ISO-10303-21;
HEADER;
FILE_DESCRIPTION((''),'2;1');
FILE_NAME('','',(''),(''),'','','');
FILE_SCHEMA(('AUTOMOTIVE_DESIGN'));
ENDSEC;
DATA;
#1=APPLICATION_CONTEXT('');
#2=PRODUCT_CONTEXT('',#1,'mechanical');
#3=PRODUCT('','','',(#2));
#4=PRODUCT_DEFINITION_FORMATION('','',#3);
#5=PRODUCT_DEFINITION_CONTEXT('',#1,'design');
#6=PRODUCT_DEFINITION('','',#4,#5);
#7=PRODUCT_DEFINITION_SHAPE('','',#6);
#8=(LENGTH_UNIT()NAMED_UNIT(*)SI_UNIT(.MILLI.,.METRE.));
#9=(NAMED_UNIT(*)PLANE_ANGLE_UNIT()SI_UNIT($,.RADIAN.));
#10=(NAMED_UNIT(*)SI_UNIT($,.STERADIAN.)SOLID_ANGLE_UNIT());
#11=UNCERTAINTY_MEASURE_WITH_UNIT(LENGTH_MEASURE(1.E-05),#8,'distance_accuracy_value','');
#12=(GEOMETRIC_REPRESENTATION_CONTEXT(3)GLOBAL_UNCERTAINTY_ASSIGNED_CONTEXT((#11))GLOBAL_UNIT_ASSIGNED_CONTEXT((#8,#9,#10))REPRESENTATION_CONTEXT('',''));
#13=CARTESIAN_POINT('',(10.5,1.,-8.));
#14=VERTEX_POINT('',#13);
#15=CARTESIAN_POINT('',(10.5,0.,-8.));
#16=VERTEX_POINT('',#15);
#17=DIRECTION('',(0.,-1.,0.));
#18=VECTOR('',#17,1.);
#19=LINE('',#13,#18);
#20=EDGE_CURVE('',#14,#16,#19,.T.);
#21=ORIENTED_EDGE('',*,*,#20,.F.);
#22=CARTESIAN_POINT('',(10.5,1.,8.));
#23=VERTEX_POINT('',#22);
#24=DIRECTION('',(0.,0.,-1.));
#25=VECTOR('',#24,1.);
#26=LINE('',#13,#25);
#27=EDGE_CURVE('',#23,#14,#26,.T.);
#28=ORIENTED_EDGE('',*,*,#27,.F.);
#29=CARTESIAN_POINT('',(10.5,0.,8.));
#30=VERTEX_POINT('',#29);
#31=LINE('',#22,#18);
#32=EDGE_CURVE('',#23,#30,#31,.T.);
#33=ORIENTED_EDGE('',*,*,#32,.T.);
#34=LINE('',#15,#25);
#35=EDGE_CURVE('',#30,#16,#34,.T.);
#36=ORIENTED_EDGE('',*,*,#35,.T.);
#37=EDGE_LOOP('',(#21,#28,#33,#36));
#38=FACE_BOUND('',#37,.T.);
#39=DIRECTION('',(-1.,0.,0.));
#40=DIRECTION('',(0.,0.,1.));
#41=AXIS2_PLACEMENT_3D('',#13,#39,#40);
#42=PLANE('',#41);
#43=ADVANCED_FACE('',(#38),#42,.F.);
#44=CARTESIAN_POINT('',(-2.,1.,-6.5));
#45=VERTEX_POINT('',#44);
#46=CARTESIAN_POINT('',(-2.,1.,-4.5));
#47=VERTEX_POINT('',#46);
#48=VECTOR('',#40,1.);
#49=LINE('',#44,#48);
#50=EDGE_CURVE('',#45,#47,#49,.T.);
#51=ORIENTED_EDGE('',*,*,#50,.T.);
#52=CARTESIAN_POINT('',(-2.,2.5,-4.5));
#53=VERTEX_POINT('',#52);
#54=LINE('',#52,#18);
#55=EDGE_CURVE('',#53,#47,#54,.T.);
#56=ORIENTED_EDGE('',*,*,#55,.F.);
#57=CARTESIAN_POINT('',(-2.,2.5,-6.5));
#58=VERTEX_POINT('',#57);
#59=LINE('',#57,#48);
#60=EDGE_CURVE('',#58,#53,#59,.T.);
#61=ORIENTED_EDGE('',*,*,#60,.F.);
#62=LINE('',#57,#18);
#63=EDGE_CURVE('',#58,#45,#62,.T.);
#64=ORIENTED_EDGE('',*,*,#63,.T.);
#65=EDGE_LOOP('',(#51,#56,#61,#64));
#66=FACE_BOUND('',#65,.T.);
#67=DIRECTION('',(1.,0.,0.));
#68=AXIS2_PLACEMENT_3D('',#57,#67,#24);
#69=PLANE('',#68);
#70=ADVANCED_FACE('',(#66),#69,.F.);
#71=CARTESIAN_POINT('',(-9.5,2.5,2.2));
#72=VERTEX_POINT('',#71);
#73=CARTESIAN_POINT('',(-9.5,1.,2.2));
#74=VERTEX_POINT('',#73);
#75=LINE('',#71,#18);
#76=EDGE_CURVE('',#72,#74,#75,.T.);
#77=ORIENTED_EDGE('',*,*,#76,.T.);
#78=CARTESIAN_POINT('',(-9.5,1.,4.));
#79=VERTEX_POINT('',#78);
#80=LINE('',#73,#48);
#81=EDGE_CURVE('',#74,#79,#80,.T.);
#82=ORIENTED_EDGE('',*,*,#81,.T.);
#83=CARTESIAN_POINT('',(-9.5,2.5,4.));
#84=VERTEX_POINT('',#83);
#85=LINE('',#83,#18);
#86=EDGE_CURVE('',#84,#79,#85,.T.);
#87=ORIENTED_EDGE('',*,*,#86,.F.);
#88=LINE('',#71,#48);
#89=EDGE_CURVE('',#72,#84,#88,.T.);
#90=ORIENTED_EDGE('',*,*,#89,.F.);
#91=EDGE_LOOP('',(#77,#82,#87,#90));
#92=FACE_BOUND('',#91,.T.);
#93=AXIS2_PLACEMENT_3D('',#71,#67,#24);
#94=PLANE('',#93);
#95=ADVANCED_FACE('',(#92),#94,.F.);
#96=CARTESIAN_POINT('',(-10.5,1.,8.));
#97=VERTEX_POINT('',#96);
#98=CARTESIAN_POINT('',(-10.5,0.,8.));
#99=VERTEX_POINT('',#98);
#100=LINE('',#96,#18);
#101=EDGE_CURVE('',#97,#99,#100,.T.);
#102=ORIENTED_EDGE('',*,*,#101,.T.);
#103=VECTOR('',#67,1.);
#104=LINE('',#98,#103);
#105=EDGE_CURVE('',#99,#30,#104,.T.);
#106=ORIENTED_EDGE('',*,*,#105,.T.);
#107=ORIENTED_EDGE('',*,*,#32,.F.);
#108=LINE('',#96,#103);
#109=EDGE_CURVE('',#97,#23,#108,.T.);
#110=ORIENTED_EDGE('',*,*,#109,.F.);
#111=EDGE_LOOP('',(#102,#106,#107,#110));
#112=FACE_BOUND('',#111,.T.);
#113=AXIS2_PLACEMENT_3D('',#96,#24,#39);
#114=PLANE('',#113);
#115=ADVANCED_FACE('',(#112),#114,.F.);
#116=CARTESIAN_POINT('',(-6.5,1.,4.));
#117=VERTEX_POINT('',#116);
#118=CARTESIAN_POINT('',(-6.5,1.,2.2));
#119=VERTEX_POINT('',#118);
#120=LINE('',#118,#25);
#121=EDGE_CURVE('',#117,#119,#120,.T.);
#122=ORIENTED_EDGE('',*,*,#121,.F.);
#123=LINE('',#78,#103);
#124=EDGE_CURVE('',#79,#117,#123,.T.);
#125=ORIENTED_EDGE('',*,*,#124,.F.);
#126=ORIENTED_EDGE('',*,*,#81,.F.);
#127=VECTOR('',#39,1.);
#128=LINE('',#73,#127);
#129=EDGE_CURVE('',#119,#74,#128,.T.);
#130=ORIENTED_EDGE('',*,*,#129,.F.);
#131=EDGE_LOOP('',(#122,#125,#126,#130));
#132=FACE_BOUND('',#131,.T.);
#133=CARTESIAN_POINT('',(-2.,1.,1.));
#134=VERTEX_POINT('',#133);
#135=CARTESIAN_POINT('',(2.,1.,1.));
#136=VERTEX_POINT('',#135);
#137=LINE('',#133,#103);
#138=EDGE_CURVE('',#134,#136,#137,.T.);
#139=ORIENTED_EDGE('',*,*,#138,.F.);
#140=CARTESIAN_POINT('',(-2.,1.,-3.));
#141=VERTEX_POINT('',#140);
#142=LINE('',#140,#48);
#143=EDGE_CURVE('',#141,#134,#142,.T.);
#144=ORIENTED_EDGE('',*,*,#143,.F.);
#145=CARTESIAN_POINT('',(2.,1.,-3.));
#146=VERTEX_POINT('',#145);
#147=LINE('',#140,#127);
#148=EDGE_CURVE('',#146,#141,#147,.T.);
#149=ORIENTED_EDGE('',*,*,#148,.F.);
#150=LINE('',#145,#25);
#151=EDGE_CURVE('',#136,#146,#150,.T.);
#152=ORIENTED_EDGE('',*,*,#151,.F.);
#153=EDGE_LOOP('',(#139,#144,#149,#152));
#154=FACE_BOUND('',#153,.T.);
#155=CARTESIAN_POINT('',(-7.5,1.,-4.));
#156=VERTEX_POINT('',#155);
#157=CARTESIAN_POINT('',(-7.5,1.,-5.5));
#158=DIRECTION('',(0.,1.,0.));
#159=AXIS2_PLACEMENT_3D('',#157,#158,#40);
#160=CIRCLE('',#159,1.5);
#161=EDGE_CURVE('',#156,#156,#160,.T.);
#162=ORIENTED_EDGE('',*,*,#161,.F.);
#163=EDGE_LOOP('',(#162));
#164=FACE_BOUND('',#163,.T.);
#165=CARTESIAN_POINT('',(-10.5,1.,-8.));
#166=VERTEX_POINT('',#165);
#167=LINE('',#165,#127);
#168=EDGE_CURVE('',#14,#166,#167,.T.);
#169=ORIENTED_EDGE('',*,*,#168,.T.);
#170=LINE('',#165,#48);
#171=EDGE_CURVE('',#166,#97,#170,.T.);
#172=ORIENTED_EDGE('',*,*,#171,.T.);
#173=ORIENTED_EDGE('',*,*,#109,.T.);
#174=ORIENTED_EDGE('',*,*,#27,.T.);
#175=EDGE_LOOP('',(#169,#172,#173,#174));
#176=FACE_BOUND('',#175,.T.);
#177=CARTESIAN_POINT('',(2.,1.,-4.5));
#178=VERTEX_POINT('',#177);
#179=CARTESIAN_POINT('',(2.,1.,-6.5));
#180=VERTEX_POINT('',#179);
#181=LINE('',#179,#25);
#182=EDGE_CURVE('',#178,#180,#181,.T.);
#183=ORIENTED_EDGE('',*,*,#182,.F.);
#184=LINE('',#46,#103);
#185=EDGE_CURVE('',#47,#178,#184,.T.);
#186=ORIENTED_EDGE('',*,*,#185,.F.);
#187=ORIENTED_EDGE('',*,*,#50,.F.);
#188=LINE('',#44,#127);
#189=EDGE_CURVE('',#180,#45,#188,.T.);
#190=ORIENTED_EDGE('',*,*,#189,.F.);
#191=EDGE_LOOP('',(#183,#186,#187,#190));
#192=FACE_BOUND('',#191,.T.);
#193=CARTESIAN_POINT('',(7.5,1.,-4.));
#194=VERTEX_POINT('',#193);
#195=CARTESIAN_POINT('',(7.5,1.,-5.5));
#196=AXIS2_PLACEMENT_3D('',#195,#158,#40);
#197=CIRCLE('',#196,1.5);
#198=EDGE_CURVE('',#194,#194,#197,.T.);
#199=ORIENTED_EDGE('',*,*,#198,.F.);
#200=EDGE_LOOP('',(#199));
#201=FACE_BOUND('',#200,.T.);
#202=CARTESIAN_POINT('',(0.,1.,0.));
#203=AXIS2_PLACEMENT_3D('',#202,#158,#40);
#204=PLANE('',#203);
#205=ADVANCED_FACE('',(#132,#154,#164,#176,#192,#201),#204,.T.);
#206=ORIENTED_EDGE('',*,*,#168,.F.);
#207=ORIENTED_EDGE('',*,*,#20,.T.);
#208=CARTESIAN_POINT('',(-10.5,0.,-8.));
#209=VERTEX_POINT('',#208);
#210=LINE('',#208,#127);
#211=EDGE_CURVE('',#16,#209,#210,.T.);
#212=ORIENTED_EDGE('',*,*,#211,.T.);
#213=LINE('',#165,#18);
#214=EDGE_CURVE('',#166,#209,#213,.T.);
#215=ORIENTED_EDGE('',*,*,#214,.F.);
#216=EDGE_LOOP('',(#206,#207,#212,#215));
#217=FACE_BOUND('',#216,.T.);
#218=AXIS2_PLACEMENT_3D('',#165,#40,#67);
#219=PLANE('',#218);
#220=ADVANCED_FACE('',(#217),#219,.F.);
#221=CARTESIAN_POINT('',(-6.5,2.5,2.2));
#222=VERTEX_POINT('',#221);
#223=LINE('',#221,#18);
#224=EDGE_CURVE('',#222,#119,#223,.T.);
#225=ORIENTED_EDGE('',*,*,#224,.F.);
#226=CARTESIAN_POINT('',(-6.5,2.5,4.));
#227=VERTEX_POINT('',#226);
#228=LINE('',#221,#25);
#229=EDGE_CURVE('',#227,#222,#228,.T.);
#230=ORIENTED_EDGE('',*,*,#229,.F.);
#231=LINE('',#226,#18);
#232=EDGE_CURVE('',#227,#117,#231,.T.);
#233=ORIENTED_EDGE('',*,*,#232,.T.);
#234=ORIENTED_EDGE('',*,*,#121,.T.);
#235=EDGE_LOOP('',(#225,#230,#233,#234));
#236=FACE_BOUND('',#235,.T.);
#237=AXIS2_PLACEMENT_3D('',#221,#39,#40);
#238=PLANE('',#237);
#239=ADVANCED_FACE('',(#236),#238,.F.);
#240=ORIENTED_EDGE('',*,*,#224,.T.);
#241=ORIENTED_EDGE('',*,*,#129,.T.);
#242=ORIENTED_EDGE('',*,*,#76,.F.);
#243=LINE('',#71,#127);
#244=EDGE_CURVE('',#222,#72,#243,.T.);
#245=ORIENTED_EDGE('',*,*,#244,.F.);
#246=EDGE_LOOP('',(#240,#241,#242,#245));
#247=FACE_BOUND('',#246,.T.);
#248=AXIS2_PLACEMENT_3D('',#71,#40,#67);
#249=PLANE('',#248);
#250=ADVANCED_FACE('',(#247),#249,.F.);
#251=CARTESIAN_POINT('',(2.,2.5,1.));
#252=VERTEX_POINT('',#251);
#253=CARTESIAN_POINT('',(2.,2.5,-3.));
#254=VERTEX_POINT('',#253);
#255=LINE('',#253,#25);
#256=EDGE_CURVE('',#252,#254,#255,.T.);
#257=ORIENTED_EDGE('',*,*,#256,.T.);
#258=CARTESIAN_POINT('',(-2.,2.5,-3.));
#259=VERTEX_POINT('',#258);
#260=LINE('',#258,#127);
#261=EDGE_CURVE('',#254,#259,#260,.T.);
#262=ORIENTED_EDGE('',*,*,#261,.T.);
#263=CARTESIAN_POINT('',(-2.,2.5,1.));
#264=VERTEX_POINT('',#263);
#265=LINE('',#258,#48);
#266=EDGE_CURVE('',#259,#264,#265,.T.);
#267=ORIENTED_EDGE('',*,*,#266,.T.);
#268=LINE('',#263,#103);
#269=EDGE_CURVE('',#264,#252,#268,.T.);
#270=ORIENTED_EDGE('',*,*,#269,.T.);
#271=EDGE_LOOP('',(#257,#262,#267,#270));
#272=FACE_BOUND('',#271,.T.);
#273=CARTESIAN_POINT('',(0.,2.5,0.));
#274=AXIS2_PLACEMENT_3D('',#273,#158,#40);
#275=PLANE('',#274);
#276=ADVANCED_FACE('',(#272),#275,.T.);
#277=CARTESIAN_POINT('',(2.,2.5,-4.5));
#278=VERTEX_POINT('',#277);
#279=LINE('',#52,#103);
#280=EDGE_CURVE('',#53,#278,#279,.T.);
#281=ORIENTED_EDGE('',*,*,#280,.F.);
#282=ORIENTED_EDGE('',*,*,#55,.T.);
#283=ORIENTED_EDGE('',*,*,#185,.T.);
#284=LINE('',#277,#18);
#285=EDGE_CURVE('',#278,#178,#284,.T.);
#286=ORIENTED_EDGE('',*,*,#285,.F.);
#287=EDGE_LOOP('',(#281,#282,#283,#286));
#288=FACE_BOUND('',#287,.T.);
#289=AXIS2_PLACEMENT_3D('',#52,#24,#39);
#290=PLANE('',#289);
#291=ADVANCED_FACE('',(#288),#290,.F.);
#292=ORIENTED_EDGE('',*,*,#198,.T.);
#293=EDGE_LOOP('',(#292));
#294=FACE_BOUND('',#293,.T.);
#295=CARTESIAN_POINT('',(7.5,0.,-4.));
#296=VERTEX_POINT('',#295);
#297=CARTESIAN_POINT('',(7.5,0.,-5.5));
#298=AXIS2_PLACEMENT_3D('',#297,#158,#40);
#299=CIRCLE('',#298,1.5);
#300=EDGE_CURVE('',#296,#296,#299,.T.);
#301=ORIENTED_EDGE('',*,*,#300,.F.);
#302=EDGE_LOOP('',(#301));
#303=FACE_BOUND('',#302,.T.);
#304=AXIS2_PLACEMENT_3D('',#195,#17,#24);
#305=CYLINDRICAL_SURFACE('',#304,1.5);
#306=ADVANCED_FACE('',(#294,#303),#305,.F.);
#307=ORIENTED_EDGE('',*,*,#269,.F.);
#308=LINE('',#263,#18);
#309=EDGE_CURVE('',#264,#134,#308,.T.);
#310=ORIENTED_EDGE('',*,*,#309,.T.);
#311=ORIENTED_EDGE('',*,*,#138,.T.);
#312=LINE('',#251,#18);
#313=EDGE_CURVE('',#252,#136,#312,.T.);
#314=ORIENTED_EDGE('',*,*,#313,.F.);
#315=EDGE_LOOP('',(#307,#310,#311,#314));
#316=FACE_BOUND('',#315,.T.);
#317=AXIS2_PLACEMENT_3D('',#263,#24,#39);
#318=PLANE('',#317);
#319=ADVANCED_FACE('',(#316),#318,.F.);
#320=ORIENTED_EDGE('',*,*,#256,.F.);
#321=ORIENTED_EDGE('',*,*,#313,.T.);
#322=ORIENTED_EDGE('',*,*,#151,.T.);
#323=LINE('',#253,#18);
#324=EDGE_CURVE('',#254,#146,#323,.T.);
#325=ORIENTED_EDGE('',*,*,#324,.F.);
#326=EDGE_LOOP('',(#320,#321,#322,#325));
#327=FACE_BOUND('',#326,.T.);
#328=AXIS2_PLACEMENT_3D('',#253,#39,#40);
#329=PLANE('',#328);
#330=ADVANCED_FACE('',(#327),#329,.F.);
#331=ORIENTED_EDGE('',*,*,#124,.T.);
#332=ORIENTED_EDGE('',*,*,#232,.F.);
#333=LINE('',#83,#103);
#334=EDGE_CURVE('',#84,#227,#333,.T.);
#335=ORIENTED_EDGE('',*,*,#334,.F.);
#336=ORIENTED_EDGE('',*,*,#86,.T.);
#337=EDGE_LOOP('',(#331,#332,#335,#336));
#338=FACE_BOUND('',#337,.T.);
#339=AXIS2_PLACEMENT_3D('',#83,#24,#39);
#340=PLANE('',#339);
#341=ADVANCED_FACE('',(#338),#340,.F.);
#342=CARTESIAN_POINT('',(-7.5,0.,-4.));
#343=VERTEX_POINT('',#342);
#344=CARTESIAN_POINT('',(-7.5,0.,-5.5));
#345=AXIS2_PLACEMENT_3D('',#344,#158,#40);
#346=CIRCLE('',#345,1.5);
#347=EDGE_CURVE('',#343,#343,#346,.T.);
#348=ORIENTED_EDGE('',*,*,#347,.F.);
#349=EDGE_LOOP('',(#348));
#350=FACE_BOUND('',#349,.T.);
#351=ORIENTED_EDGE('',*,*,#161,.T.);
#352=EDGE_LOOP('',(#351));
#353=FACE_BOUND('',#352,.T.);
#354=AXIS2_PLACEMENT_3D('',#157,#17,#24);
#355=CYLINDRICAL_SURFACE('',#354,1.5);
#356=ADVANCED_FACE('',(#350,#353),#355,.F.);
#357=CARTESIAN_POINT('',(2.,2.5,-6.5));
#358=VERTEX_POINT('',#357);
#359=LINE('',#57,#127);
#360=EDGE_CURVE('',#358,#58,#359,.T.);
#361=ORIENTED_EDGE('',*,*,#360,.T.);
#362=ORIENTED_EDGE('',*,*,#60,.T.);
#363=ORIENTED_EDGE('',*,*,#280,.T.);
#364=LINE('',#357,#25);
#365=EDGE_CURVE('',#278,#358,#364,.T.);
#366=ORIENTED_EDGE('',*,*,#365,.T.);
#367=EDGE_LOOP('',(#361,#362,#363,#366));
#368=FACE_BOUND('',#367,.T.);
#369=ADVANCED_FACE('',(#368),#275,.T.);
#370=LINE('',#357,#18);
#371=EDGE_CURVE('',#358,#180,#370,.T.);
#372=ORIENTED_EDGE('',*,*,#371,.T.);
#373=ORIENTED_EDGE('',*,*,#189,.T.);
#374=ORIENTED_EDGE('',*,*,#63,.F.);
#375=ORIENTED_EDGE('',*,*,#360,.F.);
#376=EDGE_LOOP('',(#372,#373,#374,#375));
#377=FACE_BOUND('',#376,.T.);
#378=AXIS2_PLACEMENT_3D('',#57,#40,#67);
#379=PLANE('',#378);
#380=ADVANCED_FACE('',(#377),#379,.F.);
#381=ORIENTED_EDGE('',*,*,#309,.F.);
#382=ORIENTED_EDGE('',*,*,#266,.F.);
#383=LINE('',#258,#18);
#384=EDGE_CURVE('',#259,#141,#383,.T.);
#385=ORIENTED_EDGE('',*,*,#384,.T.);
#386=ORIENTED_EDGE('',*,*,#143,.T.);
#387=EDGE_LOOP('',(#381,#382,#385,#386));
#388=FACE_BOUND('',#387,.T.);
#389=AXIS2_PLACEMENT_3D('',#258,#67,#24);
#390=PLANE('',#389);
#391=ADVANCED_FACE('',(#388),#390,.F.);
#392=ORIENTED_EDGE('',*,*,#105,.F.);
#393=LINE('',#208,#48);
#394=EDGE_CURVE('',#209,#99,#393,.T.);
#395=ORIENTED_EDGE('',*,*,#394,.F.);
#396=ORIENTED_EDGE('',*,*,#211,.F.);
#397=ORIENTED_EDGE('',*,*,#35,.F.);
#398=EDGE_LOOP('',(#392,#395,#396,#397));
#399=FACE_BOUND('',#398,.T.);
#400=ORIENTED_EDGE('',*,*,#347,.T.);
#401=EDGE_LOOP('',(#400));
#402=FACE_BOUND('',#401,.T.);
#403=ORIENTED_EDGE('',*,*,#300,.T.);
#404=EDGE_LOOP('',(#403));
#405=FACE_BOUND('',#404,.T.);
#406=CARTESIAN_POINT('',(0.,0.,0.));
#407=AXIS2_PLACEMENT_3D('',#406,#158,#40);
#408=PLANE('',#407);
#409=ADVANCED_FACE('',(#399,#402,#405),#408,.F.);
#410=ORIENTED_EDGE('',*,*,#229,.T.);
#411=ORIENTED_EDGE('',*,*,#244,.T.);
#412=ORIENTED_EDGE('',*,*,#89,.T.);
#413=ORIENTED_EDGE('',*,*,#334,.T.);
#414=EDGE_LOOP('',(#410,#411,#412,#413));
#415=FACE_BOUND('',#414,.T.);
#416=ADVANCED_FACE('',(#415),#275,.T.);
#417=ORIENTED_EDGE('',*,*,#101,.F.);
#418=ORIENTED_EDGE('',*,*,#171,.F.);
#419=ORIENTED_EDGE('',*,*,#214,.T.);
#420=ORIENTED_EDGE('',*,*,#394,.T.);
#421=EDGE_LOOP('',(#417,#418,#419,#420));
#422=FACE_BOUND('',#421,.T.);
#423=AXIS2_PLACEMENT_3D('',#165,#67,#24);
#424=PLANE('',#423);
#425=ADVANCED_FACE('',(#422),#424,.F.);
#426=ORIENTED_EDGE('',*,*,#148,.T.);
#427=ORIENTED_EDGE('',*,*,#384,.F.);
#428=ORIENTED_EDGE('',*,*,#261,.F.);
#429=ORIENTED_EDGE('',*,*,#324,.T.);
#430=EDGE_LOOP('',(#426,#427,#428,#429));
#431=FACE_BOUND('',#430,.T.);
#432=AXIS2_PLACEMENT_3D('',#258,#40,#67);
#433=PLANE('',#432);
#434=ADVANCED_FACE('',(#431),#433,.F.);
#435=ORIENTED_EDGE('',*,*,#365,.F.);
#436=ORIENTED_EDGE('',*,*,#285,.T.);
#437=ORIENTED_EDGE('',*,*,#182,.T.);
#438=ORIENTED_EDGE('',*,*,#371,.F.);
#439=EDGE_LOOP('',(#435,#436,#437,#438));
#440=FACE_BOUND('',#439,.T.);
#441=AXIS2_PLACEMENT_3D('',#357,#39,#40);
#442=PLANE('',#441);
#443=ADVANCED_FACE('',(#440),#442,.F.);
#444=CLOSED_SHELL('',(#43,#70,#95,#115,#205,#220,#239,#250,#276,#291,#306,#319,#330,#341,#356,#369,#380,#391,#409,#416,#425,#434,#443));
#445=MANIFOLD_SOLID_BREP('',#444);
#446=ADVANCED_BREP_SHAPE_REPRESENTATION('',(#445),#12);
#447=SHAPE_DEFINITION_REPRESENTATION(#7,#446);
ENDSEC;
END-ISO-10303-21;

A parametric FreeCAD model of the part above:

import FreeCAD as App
import Part
import Sketcher

V = App.Vector


def add_polygon(sketch, points):
    """Adds a closed chain of lines whose ends are joined by coincident constraints."""
    first, n = sketch.GeometryCount, len(points)
    for a, b in zip(points, points[1:] + points[:1]):
        sketch.addGeometry(Part.LineSegment(App.Vector(*a, 0), App.Vector(*b, 0)), False)
    for i in range(n):
        sketch.addConstraint(Sketcher.Constraint("Coincident", first + i, 2, first + (i + 1) % n, 1))

doc = App.newDocument("Part")
body = doc.addObject("PartDesign::Body", "Body")

# Sketch on XZ plane
sketch1 = body.newObject("Sketcher::SketchObject", "Sketch")
sketch1.AttachmentSupport = (doc.getObject("XZ_Plane"), [""])
sketch1.MapMode = "FlatFace"
add_polygon(sketch1, [(-10.5, -8), (-10.5, 8), (10.5, 8), (10.5, -8)])  # lines 0-3
sketch1.addGeometry(Part.Circle(V(-7.5, -5.5, 0), V(0, 0, 1), 1.5), False)  # 4
sketch1.addGeometry(Part.Circle(V(7.5, -5.5, 0), V(0, 0, 1), 1.5), False)  # 5
sketch1.addConstraint(Sketcher.Constraint("Vertical", 0))
sketch1.addConstraint(Sketcher.Constraint("Horizontal", 1))
sketch1.addConstraint(Sketcher.Constraint("Vertical", 2))
sketch1.addConstraint(Sketcher.Constraint("Horizontal", 3))
sketch1.addConstraint(Sketcher.Constraint("Equal", 4, 5))
sketch1.addConstraint(Sketcher.Constraint("Symmetric", 0, 2, 2, 2, -1, 1))
sketch1.addConstraint(Sketcher.Constraint("Symmetric", 4, 3, 5, 3, -2))
sketch1.addConstraint(Sketcher.Constraint("Diameter", 4, 3.0))
sketch1.addConstraint(Sketcher.Constraint("DistanceX", 1, 1, 1, 2, 21.0))
sketch1.addConstraint(Sketcher.Constraint("DistanceY", 0, 1, 0, 2, 16.0))
sketch1.addConstraint(Sketcher.Constraint("DistanceX", 4, 3, 5, 3, 15.0))
sketch1.addConstraint(Sketcher.Constraint("DistanceY", 4, 3, -1, 1, 5.5))
pad1 = body.newObject("PartDesign::Pad", "Pad")
pad1.Profile = sketch1
pad1.Length = 1
pad1.Reversed = True

# Sketch on XZ plane
sketch2 = body.newObject("Sketcher::SketchObject", "Sketch001")
sketch2.AttachmentSupport = (doc.getObject("XZ_Plane"), [""])
sketch2.MapMode = "FlatFace"
sketch2.AttachmentOffset = App.Placement(V(0, 0, -1), App.Rotation())
add_polygon(sketch2, [(-2, -3), (-2, 1), (2, 1), (2, -3)])  # lines 0-3
add_polygon(sketch2, [(-9.5, 2.2), (-9.5, 4), (-6.5, 4), (-6.5, 2.2)])  # lines 4-7
sketch2.addConstraint(Sketcher.Constraint("Vertical", 0))
sketch2.addConstraint(Sketcher.Constraint("Horizontal", 1))
sketch2.addConstraint(Sketcher.Constraint("Vertical", 2))
sketch2.addConstraint(Sketcher.Constraint("Horizontal", 3))
sketch2.addConstraint(Sketcher.Constraint("Vertical", 4))
sketch2.addConstraint(Sketcher.Constraint("Horizontal", 5))
sketch2.addConstraint(Sketcher.Constraint("Vertical", 6))
sketch2.addConstraint(Sketcher.Constraint("Horizontal", 7))
sketch2.addConstraint(Sketcher.Constraint("Equal", 3, 0))
sketch2.addConstraint(Sketcher.Constraint("DistanceX", 1, 1, 1, 2, 4.0))
sketch2.addConstraint(Sketcher.Constraint("DistanceX", 5, 1, 5, 2, 3.0))
sketch2.addConstraint(Sketcher.Constraint("DistanceY", 4, 1, 4, 2, 1.8))
sketch2.addConstraint(Sketcher.Constraint("DistanceX", 0, 2, -1, 1, 2.0))
sketch2.addConstraint(Sketcher.Constraint("DistanceY", -1, 1, 0, 2, 1.0))
sketch2.addConstraint(Sketcher.Constraint("DistanceY", -1, 1, 4, 2, 4.0))
sketch2.addConstraint(Sketcher.Constraint("DistanceX", 4, 2, -1, 1, 9.5))
pad2 = body.newObject("PartDesign::Pad", "Pad001")
pad2.Profile = sketch2
pad2.Length = 1.5
pad2.Reversed = True

# Sketch on XZ plane
sketch3 = body.newObject("Sketcher::SketchObject", "Sketch002")
sketch3.AttachmentSupport = (doc.getObject("XZ_Plane"), [""])
sketch3.MapMode = "FlatFace"
sketch3.AttachmentOffset = App.Placement(V(0, 0, -1), App.Rotation())
add_polygon(sketch3, [(-2, -6.5), (-2, -4.5), (2, -4.5), (2, -6.5)])  # lines 0-3
sketch3.addConstraint(Sketcher.Constraint("Vertical", 0))
sketch3.addConstraint(Sketcher.Constraint("Horizontal", 1))
sketch3.addConstraint(Sketcher.Constraint("Vertical", 2))
sketch3.addConstraint(Sketcher.Constraint("Horizontal", 3))
sketch3.addConstraint(Sketcher.Constraint("DistanceX", 1, 1, 1, 2, 4.0))
sketch3.addConstraint(Sketcher.Constraint("DistanceY", 0, 1, 0, 2, 2.0))
sketch3.addConstraint(Sketcher.Constraint("DistanceX", 0, 2, -1, 1, 2.0))
sketch3.addConstraint(Sketcher.Constraint("DistanceY", 0, 2, -1, 1, 4.5))
pad3 = body.newObject("PartDesign::Pad", "Pad002")
pad3.Profile = sketch3
pad3.Length = 1.5
pad3.Reversed = True

doc.recompute()
